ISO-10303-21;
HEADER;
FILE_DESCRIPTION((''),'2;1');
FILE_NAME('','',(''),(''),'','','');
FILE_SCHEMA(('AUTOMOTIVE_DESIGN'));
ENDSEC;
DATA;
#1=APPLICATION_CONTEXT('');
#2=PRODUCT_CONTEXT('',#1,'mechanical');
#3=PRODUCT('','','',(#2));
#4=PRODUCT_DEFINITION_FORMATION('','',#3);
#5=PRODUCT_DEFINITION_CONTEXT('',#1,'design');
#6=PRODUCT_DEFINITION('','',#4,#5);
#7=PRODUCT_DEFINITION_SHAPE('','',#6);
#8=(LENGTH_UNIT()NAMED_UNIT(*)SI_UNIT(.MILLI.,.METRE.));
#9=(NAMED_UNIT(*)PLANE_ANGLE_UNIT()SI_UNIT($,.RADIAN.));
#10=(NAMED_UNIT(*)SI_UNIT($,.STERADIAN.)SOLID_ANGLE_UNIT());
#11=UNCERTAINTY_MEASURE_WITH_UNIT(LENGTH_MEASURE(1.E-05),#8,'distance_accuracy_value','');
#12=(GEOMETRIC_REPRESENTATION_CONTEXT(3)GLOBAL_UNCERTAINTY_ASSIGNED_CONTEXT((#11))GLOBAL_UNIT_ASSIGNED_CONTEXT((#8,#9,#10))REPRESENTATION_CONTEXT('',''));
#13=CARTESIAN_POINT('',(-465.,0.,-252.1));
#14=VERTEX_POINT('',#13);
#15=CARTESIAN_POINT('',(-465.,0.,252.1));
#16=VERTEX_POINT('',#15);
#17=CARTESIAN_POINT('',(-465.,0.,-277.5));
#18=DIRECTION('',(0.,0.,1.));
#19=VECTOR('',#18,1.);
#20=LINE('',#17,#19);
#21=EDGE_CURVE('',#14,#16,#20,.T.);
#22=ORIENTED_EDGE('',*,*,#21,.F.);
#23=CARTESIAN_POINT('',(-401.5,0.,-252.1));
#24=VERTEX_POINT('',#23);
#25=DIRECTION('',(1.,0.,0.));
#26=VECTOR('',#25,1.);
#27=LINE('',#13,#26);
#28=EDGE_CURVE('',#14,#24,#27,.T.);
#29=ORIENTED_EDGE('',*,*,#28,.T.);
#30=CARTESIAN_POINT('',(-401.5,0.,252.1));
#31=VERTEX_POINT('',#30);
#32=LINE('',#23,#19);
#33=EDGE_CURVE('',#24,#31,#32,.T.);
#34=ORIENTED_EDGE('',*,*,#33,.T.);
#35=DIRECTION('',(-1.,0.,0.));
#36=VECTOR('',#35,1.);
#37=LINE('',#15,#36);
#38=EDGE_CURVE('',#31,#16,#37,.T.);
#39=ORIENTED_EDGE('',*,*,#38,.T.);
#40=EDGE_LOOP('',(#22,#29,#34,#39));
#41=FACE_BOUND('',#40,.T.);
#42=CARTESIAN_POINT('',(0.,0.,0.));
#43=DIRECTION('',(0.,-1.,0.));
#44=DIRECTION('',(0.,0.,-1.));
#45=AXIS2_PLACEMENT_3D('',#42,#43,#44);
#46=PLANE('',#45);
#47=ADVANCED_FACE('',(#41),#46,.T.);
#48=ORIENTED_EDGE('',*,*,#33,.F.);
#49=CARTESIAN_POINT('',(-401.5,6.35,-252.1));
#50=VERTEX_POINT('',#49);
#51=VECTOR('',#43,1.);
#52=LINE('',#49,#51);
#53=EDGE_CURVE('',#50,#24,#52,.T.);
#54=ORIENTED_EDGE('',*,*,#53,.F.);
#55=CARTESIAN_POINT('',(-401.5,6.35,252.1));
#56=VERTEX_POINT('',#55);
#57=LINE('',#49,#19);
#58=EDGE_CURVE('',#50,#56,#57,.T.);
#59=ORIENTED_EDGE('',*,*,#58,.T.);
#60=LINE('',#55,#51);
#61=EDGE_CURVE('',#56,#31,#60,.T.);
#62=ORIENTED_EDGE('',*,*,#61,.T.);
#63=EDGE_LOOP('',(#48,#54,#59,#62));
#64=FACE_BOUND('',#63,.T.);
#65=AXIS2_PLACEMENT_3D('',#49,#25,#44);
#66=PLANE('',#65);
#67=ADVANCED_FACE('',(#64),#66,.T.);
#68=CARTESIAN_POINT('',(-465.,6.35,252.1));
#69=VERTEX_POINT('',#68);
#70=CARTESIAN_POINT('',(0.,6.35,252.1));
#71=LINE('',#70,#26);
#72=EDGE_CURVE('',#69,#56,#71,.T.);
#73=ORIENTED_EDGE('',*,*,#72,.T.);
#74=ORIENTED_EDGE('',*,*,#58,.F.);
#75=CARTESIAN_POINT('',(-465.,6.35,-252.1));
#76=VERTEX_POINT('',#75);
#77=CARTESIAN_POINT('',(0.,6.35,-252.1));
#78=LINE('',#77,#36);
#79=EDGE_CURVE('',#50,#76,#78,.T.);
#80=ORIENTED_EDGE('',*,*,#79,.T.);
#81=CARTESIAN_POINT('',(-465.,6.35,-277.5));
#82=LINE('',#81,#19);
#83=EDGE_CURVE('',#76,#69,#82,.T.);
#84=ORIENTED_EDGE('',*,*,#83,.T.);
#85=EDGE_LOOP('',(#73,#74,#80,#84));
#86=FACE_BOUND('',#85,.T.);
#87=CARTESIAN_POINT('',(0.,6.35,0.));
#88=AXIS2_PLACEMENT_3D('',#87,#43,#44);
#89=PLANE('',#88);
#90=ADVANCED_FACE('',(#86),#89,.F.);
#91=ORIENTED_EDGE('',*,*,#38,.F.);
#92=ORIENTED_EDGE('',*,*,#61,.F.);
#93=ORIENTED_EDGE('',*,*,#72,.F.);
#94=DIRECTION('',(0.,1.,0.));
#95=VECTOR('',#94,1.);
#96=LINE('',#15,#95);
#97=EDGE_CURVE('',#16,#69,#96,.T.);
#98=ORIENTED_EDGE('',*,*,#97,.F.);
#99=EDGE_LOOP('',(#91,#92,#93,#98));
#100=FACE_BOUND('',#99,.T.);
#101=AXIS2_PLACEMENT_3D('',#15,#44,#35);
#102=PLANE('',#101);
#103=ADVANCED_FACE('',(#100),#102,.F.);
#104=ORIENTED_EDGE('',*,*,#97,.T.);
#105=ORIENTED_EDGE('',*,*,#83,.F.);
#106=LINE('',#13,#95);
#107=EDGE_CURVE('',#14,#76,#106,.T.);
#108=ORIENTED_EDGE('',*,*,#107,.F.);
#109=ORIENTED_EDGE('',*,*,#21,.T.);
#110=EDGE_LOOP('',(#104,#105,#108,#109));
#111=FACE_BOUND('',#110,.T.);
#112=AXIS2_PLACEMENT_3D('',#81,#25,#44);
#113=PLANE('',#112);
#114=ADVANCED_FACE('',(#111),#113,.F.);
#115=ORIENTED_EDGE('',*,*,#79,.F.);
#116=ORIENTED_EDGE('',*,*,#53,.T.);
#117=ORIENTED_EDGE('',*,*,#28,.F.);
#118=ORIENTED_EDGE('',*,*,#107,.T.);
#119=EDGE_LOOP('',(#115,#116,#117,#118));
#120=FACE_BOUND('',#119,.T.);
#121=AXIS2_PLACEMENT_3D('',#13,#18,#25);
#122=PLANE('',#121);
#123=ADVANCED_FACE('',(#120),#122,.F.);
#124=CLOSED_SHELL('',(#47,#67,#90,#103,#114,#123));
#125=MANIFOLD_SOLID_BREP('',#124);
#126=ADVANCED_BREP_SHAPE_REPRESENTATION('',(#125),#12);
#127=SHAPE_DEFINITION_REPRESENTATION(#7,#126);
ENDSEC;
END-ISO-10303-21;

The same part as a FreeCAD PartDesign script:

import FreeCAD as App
import Part
import Sketcher

doc = App.newDocument("Part")
body = doc.addObject("PartDesign::Body", "Body")

sketch1 = body.newObject("Sketcher::SketchObject", "Sketch")
sketch1.AttachmentSupport = (doc.getObject("XZ_Plane"), [""])
sketch1.MapMode = "FlatFace"
sketch1.addGeometry(Part.LineSegment(App.Vector(-465, -278, 0), App.Vector(-465, 278, 0)), False)
sketch1.addGeometry(Part.LineSegment(App.Vector(-465, 278, 0), App.Vector(465, 278, 0)), False)
sketch1.addGeometry(Part.LineSegment(App.Vector(465, 278, 0), App.Vector(465, -278, 0)), False)
sketch1.addGeometry(Part.LineSegment(App.Vector(465, -278, 0), App.Vector(-465, -278, 0)), False)
sketch1.addGeometry(Part.LineSegment(App.Vector(402, 252, 0), App.Vector(-402, 252, 0)), False)
sketch1.addGeometry(Part.LineSegment(App.Vector(-402, 252, 0), App.Vector(-402, -252, 0)), False)
sketch1.addGeometry(Part.LineSegment(App.Vector(-402, -252, 0), App.Vector(402, -252, 0)), False)
sketch1.addGeometry(Part.LineSegment(App.Vector(402, -252, 0), App.Vector(402, 252, 0)), False)
sketch1.addConstraint(Sketcher.Constraint("Coincident", 0, 2, 1, 1))
sketch1.addConstraint(Sketcher.Constraint("Coincident", 1, 2, 2, 1))
sketch1.addConstraint(Sketcher.Constraint("Coincident", 2, 2, 3, 1))
sketch1.addConstraint(Sketcher.Constraint("Coincident", 3, 2, 0, 1))
sketch1.addConstraint(Sketcher.Constraint("Coincident", 4, 2, 5, 1))
sketch1.addConstraint(Sketcher.Constraint("Coincident", 5, 2, 6, 1))
sketch1.addConstraint(Sketcher.Constraint("Coincident", 6, 2, 7, 1))
sketch1.addConstraint(Sketcher.Constraint("Coincident", 7, 2, 4, 1))
sketch1.addConstraint(Sketcher.Constraint("Vertical", 0))
sketch1.addConstraint(Sketcher.Constraint("Horizontal", 1))
sketch1.addConstraint(Sketcher.Constraint("Vertical", 2))
sketch1.addConstraint(Sketcher.Constraint("Horizontal", 3))
sketch1.addConstraint(Sketcher.Constraint("Horizontal", 4))
sketch1.addConstraint(Sketcher.Constraint("Vertical", 5))
sketch1.addConstraint(Sketcher.Constraint("Horizontal", 6))
sketch1.addConstraint(Sketcher.Constraint("Vertical", 7))
sketch1.addConstraint(Sketcher.Constraint("Symmetric", 0, 2, 2, 2, -1, 1))
sketch1.addConstraint(Sketcher.Constraint("Symmetric", 4, 2, 6, 2, -1, 1))
sketch1.addConstraint(Sketcher.Constraint("DistanceX", 1, 1, 1, 2, 930.0))
sketch1.addConstraint(Sketcher.Constraint("DistanceX", 4, 2, 4, 1, 803.0))
sketch1.addConstraint(Sketcher.Constraint("DistanceY", 0, 1, 0, 2, 555.0))
sketch1.addConstraint(Sketcher.Constraint("DistanceY", 5, 2, 5, 1, 504.2))
pad1 = body.newObject("PartDesign::Pad", "Pad")
pad1.Profile = sketch1
pad1.Length = 6.35
pad1.Reversed = True

sketch2 = body.newObject("Sketcher::SketchObject", "Sketch001")
sketch2.AttachmentSupport = (doc.getObject("XZ_Plane"), [""])
sketch2.MapMode = "FlatFace"
sketch2.AttachmentOffset = App.Placement(App.Vector(0, 0, -6.35), App.Rotation())
sketch2.addGeometry(Part.LineSegment(App.Vector(465, -278, 0), App.Vector(-465, -278, 0)), False)
sketch2.addGeometry(Part.LineSegment(App.Vector(-465, -278, 0), App.Vector(-465, -252, 0)), False)
sketch2.addGeometry(Part.LineSegment(App.Vector(-465, -252, 0), App.Vector(402, -252, 0)), False)
sketch2.addGeometry(Part.LineSegment(App.Vector(402, -252, 0), App.Vector(402, 252, 0)), False)
sketch2.addGeometry(Part.LineSegment(App.Vector(402, 252, 0), App.Vector(-465, 252, 0)), False)
sketch2.addGeometry(Part.LineSegment(App.Vector(-465, 252, 0), App.Vector(-465, 278, 0)), False)
sketch2.addGeometry(Part.LineSegment(App.Vector(-465, 278, 0), App.Vector(465, 278, 0)), False)
sketch2.addGeometry(Part.LineSegment(App.Vector(465, 278, 0), App.Vector(465, -278, 0)), False)
sketch2.addConstraint(Sketcher.Constraint("Coincident", 0, 2, 1, 1))
sketch2.addConstraint(Sketcher.Constraint("Coincident", 1, 2, 2, 1))
sketch2.addConstraint(Sketcher.Constraint("Coincident", 2, 2, 3, 1))
sketch2.addConstraint(Sketcher.Constraint("Coincident", 3, 2, 4, 1))
sketch2.addConstraint(Sketcher.Constraint("Coincident", 4, 2, 5, 1))
sketch2.addConstraint(Sketcher.Constraint("Coincident", 5, 2, 6, 1))
sketch2.addConstraint(Sketcher.Constraint("Coincident", 6, 2, 7, 1))
sketch2.addConstraint(Sketcher.Constraint("Coincident", 7, 2, 0, 1))
sketch2.addConstraint(Sketcher.Constraint("Horizontal", 0))
sketch2.addConstraint(Sketcher.Constraint("Vertical", 1))
sketch2.addConstraint(Sketcher.Constraint("Horizontal", 2))
sketch2.addConstraint(Sketcher.Constraint("Vertical", 3))
sketch2.addConstraint(Sketcher.Constraint("Horizontal", 4))
sketch2.addConstraint(Sketcher.Constraint("Vertical", 5))
sketch2.addConstraint(Sketcher.Constraint("Horizontal", 6))
sketch2.addConstraint(Sketcher.Constraint("Vertical", 7))
sketch2.addConstraint(Sketcher.Constraint("Symmetric", 0, 2, 6, 2, -1, 1))
sketch2.addConstraint(Sketcher.Constraint("Symmetric", 1, 2, 4, 2, -1))
sketch2.addConstraint(Sketcher.Constraint("DistanceX", 0, 2, 0, 1, 930.0))
sketch2.addConstraint(Sketcher.Constraint("DistanceY", 7, 2, 7, 1, 555.0))
sketch2.addConstraint(Sketcher.Constraint("DistanceX", 2, 1, 2, 2, 866.5))
sketch2.addConstraint(Sketcher.Constraint("DistanceY", 1, 1, 1, 2, 25.4))
pocket1 = body.newObject("PartDesign::Pocket", "Pocket")
pocket1.Profile = sketch2
pocket1.Type = "ThroughAll"
pocket1.Midplane = True

doc.recompute()
